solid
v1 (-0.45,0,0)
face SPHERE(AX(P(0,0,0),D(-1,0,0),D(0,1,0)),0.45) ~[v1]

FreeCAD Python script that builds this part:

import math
import FreeCAD as App
import Part
import Sketcher

V = App.Vector
Q = App.Units.Quantity

doc = App.newDocument("Part")
body = doc.addObject("PartDesign::Body", "Body")

# Sketch on XY plane
sketch1 = doc.addObject("Sketcher::SketchObject", "Sketch")
body.addObject(sketch1)
sketch1.AttachmentSupport = (doc.XY_Plane, [""])
sketch1.MapMode = "FlatFace"
sketch1.addGeometry([
    Part.LineSegment(V(-0.45, 0, 0), V(0.45, 0, 0)),
    Part.ArcOfCircle(Part.Circle(V(0, 0, 0), V(0, 0, 1), 0.45), math.radians(0), math.radians(180)),
], False)
sketch1.addConstraint([
    Sketcher.Constraint("Coincident", 0, 1, 1, 2),
    Sketcher.Constraint("Coincident", 1, 1, 0, 2),
    Sketcher.Constraint("Horizontal", 0),
    Sketcher.Constraint("Coincident", 1, 3, -1, 1),
    Sketcher.Constraint("PointOnObject", 0, 1, -1),
    Sketcher.Constraint("Radius", 1, Q("0.45 mm")),
])
revolution = doc.addObject("PartDesign::Revolution", "Revolution")
body.addObject(revolution)
revolution.Profile = sketch1
revolution.ReferenceAxis = (sketch1, ["H_Axis"])
revolution.Angle = 360

doc.recompute()
